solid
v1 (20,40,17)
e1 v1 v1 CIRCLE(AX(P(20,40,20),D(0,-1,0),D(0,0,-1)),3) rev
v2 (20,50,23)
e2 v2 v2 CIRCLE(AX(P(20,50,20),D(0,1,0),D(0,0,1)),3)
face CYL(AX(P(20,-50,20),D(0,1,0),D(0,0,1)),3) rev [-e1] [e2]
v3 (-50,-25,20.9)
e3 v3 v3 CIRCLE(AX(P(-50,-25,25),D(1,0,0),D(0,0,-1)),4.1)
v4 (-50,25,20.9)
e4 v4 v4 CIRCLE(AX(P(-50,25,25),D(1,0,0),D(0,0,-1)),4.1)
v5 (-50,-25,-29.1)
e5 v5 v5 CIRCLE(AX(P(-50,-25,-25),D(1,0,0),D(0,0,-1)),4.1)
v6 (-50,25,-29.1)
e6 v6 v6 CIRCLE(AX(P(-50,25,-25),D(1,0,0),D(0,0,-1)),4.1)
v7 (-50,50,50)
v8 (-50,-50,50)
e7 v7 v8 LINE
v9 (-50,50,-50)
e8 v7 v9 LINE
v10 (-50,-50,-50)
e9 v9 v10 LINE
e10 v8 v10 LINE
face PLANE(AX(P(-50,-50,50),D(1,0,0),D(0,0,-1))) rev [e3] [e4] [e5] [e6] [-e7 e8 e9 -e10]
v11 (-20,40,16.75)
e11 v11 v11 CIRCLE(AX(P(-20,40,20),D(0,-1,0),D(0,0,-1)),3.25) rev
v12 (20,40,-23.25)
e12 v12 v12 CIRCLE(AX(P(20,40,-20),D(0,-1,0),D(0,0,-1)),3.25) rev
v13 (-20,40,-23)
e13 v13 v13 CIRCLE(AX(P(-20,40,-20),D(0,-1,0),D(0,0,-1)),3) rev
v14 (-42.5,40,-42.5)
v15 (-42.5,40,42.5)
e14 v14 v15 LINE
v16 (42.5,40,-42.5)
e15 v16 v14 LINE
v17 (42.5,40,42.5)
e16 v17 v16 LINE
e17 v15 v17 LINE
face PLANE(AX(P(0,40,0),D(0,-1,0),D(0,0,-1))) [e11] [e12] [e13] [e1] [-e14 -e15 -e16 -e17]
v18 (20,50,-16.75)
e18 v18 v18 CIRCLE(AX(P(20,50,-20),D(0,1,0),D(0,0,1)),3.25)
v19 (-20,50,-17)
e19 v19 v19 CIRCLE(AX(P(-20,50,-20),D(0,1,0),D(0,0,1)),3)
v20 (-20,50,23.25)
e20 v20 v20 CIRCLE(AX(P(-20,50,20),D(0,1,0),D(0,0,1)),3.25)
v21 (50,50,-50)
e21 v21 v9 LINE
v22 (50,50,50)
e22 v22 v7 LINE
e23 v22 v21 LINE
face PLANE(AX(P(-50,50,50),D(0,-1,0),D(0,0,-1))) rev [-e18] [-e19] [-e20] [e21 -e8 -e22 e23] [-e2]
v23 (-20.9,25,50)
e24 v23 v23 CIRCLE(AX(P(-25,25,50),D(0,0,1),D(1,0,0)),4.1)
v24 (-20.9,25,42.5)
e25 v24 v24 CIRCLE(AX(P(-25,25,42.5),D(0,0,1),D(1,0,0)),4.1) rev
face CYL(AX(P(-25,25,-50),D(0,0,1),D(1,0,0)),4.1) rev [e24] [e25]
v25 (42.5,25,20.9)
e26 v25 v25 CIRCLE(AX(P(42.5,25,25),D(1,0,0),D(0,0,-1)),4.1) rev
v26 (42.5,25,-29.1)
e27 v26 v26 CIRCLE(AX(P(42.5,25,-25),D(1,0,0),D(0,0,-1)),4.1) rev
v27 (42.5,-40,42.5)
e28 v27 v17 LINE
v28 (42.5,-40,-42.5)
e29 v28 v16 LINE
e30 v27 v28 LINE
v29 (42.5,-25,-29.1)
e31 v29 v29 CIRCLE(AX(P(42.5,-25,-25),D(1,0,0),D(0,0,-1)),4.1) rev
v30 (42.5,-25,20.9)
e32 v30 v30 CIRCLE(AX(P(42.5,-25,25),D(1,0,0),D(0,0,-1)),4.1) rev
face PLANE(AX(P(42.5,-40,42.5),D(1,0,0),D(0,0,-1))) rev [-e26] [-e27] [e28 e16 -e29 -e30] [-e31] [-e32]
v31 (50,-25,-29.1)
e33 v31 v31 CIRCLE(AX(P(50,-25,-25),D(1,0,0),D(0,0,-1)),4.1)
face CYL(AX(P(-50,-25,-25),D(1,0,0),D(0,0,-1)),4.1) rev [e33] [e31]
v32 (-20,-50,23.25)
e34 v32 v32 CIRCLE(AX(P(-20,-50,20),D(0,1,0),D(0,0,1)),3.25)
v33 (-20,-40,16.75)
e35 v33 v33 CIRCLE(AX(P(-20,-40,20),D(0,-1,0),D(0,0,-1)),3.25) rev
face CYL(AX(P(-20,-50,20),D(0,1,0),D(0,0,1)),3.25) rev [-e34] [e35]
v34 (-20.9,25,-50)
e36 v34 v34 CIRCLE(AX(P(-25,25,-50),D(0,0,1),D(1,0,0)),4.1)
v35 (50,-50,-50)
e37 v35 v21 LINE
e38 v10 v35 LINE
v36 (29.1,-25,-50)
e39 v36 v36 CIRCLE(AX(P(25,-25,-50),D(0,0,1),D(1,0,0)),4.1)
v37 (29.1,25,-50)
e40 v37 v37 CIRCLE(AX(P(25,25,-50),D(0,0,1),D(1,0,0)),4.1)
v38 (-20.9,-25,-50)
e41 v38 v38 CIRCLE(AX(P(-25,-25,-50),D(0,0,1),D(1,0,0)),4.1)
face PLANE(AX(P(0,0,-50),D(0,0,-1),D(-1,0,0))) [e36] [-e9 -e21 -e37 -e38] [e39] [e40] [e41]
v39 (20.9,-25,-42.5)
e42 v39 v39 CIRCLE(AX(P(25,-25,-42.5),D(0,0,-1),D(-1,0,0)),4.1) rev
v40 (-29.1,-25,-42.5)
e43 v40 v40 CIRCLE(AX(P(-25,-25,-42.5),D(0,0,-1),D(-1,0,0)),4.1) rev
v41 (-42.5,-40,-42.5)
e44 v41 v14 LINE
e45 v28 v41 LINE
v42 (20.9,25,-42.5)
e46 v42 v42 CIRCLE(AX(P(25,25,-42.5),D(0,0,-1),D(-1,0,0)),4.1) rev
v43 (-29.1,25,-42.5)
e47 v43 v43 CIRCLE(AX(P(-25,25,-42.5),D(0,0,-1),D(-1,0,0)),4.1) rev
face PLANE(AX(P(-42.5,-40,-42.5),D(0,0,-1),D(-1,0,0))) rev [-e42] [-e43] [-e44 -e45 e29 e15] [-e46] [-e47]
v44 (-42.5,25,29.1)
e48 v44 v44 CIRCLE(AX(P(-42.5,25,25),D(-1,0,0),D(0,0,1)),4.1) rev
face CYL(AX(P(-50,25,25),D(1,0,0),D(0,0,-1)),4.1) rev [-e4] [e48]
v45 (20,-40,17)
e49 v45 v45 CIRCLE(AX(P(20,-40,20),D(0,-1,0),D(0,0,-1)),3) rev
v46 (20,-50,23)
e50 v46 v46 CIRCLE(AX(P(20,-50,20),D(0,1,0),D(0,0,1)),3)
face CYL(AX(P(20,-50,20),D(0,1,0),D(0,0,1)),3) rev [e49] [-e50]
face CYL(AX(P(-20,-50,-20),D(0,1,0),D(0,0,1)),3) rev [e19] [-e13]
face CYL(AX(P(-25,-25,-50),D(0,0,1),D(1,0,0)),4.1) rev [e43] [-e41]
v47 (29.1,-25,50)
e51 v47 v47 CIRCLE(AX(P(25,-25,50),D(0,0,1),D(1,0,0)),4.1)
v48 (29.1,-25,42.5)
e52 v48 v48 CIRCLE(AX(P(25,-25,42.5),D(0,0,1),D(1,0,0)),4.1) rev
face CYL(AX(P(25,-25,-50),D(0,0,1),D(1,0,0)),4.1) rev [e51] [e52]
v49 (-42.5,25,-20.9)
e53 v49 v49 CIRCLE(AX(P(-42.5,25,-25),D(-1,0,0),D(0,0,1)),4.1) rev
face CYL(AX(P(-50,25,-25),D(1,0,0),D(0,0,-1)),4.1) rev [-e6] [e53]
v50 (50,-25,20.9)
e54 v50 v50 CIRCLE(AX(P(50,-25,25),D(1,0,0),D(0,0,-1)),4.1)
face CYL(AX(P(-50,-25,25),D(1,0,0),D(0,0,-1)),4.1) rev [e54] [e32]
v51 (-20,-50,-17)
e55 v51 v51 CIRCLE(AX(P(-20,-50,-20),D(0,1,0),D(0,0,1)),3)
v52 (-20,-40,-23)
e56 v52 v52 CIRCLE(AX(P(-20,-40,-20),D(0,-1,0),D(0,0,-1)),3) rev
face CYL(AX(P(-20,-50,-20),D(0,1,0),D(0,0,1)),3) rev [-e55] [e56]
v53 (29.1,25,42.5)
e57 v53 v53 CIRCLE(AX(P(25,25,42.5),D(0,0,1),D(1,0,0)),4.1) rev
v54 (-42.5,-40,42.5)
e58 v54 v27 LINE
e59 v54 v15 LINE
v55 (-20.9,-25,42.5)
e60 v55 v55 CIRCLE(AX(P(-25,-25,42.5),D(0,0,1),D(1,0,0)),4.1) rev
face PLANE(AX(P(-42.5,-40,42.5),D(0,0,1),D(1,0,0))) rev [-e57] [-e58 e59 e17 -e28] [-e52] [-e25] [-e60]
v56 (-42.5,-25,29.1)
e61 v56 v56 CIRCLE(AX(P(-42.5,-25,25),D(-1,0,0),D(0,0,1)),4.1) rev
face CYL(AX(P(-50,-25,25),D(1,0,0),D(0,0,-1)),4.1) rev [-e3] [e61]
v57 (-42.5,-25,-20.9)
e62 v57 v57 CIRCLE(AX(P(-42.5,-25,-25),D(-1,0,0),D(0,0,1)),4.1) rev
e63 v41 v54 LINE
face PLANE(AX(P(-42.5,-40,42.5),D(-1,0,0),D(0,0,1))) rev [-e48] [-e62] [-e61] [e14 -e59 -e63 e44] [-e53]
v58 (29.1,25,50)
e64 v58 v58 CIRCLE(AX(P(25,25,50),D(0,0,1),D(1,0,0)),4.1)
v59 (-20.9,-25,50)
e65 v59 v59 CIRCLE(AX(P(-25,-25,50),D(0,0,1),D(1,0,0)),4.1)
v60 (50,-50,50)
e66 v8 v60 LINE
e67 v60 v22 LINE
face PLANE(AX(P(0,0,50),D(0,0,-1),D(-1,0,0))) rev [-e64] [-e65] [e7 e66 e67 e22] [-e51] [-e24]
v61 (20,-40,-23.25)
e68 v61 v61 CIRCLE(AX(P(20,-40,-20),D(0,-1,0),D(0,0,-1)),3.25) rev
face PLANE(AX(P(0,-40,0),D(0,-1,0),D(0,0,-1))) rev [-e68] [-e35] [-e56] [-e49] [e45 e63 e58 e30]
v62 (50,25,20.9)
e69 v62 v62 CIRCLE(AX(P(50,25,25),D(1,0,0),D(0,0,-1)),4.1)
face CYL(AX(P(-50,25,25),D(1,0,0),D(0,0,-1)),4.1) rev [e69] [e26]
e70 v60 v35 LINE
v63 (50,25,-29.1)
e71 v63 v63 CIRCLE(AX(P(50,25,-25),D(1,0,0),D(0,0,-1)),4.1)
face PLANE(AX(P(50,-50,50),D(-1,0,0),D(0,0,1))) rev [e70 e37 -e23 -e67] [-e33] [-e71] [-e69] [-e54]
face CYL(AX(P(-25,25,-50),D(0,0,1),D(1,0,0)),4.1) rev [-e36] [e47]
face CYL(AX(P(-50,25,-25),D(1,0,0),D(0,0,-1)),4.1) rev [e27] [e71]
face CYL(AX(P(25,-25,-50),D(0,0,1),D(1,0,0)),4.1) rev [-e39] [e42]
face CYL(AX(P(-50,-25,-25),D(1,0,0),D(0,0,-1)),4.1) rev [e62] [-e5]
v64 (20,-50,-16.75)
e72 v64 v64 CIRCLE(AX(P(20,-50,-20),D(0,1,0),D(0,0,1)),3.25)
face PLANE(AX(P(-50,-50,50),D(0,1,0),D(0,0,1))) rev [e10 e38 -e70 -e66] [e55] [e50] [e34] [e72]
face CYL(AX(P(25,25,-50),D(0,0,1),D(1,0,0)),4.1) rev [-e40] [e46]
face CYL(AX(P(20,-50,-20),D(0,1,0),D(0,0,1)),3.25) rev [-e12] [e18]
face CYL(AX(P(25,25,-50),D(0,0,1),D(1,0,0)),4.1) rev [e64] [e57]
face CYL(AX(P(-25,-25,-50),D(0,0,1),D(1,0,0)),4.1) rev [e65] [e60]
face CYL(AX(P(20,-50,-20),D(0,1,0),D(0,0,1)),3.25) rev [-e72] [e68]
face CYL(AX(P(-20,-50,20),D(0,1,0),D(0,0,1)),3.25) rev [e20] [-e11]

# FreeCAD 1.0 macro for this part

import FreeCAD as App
import Part
import Sketcher
Q = App.Units.Quantity

doc = App.newDocument("Part")
params = doc.addObject("Spreadsheet::Sheet", "Params")
for row, (alias, value) in enumerate([
    ("sketch1_width", "100 mm"),
    ("pad1_length", "100 mm"),
    ("sketch2_diameter", "8.2 mm"),
    ("sketch3_diameter", "8.2 mm"),
    ("sketch4_diameter", "6 mm"),
    ("sketch4_diameter2", "6.5 mm"),
    ("sketch5_width", "85 mm"),
    ("pocket4_length", "80 mm"),
], start=1):
    params.set(f"A{row}", alias)
    params.set(f"B{row}", "=" + value)
    params.setAlias(f"B{row}", alias)

body = doc.addObject("PartDesign::Body", "Body")

# Sketch on XY plane
sketch1 = doc.addObject("Sketcher::SketchObject", "Sketch")
body.addObject(sketch1)
sketch1.AttachmentSupport = (doc.XY_Plane, [""])
sketch1.MapMode = "FlatFace"
sketch1.addGeometry([
    Part.LineSegment(App.Vector(-50, 50, 0), App.Vector(-50, -50, 0)),
    Part.LineSegment(App.Vector(-50, -50, 0), App.Vector(50, -50, 0)),
    Part.LineSegment(App.Vector(50, -50, 0), App.Vector(50, 50, 0)),
    Part.LineSegment(App.Vector(50, 50, 0), App.Vector(-50, 50, 0)),
], False)
sketch1.addConstraint([
    Sketcher.Constraint("Coincident", 0, 2, 1, 1),
    Sketcher.Constraint("Coincident", 1, 2, 2, 1),
    Sketcher.Constraint("Coincident", 2, 2, 3, 1),
    Sketcher.Constraint("Coincident", 3, 2, 0, 1),
    Sketcher.Constraint("Vertical", 0),
    Sketcher.Constraint("Horizontal", 1),
    Sketcher.Constraint("Vertical", 2),
    Sketcher.Constraint("Horizontal", 3),
    Sketcher.Constraint("Symmetric", 0, 2, 2, 2, -1, 1),
    Sketcher.Constraint("Equal", 3, 0),
    Sketcher.Constraint("DistanceX", 1, 1, 1, 2, Q("100 mm")),
])
sketch1.setExpression("Constraints[10]", "Params.sketch1_width")
pad1 = doc.addObject("PartDesign::Pad", "Pad")
body.addObject(pad1)
pad1.Profile = sketch1
pad1.setExpression("Length", "Params.pad1_length")
pad1.Midplane = True

# Sketch on XY plane
sketch2 = doc.addObject("Sketcher::SketchObject", "Sketch001")
body.addObject(sketch2)
sketch2.AttachmentSupport = (doc.XY_Plane, [""])
sketch2.MapMode = "FlatFace"
sketch2.AttachmentOffset = App.Placement(App.Vector(0, 0, 50), App.Rotation())
sketch2.addGeometry([
    Part.Circle(App.Vector(-25, 25, 0), App.Vector(0, 0, 1), 4.1),
    Part.Circle(App.Vector(25, 25, 0), App.Vector(0, 0, 1), 4.1),
    Part.Circle(App.Vector(25, -25, 0), App.Vector(0, 0, 1), 4.1),
    Part.Circle(App.Vector(-25, -25, 0), App.Vector(0, 0, 1), 4.1),
], False)
sketch2.addConstraint([
    Sketcher.Constraint("Equal", 0, 1),
    Sketcher.Constraint("Equal", 1, 2),
    Sketcher.Constraint("Equal", 2, 3),
    Sketcher.Constraint("Symmetric", 0, 3, 2, 3, -1, 1),
    Sketcher.Constraint("Symmetric", 1, 3, 3, 3, -1, 1),
    Sketcher.Constraint("Symmetric", 0, 3, 1, 3, -2),
    Sketcher.Constraint("Diameter", 0, Q("8.2 mm")),
    Sketcher.Constraint("DistanceX", 0, 3, -1, 1, Q("25 mm")),
    Sketcher.Constraint("DistanceY", -1, 1, 0, 3, Q("25 mm")),
])
sketch2.setExpression("Constraints[6]", "Params.sketch2_diameter")
pocket1 = doc.addObject("PartDesign::Pocket", "Pocket")
body.addObject(pocket1)
pocket1.Profile = sketch2
pocket1.Type = "ThroughAll"

# Sketch on YZ plane
sketch3 = doc.addObject("Sketcher::SketchObject", "Sketch002")
body.addObject(sketch3)
sketch3.AttachmentSupport = (doc.YZ_Plane, [""])
sketch3.MapMode = "FlatFace"
sketch3.AttachmentOffset = App.Placement(App.Vector(0, 0, 50), App.Rotation())
sketch3.addGeometry([
    Part.Circle(App.Vector(25, 25, 0), App.Vector(0, 0, 1), 4.1),
    Part.Circle(App.Vector(25, -25, 0), App.Vector(0, 0, 1), 4.1),
    Part.Circle(App.Vector(-25, -25, 0), App.Vector(0, 0, 1), 4.1),
    Part.Circle(App.Vector(-25, 25, 0), App.Vector(0, 0, 1), 4.1),
], False)
sketch3.addConstraint([
    Sketcher.Constraint("Equal", 0, 1),
    Sketcher.Constraint("Equal", 1, 2),
    Sketcher.Constraint("Equal", 2, 3),
    Sketcher.Constraint("Symmetric", 0, 3, 2, 3, -1, 1),
    Sketcher.Constraint("Symmetric", 1, 3, 3, 3, -1, 1),
    Sketcher.Constraint("Symmetric", 1, 3, 2, 3, -2),
    Sketcher.Constraint("Diameter", 0, Q("8.2 mm")),
    Sketcher.Constraint("DistanceX", -1, 1, 0, 3, Q("25 mm")),
    Sketcher.Constraint("DistanceY", -1, 1, 0, 3, Q("25 mm")),
])
sketch3.setExpression("Constraints[6]", "Params.sketch3_diameter")
pocket2 = doc.addObject("PartDesign::Pocket", "Pocket001")
body.addObject(pocket2)
pocket2.Profile = sketch3
pocket2.Type = "ThroughAll"

# Sketch on XZ plane
sketch4 = doc.addObject("Sketcher::SketchObject", "Sketch003")
body.addObject(sketch4)
sketch4.AttachmentSupport = (doc.XZ_Plane, [""])
sketch4.MapMode = "FlatFace"
sketch4.AttachmentOffset = App.Placement(App.Vector(0, 0, -50), App.Rotation())
sketch4.addGeometry([
    Part.Circle(App.Vector(-20, -20, 0), App.Vector(0, 0, 1), 3),
    Part.Circle(App.Vector(20, 20, 0), App.Vector(0, 0, 1), 3),
    Part.Circle(App.Vector(20, -20, 0), App.Vector(0, 0, 1), 3.2),
    Part.Circle(App.Vector(-20, 20, 0), App.Vector(0, 0, 1), 3.2),
], False)
sketch4.addConstraint([
    Sketcher.Constraint("Equal", 0, 1),
    Sketcher.Constraint("Equal", 2, 3),
    Sketcher.Constraint("Symmetric", 0, 3, 1, 3, -1, 1),
    Sketcher.Constraint("Symmetric", 2, 3, 3, 3, -1, 1),
    Sketcher.Constraint("Symmetric", 0, 3, 2, 3, -2),
    Sketcher.Constraint("Diameter", 0, Q("6 mm")),
    Sketcher.Constraint("Diameter", 2, Q("6.5 mm")),
    Sketcher.Constraint("DistanceX", 0, 3, -1, 1, Q("20 mm")),
    Sketcher.Constraint("DistanceY", 0, 3, -1, 1, Q("20 mm")),
])
sketch4.setExpression("Constraints[5]", "Params.sketch4_diameter")
sketch4.setExpression("Constraints[6]", "Params.sketch4_diameter2")
pocket3 = doc.addObject("PartDesign::Pocket", "Pocket002")
body.addObject(pocket3)
pocket3.Profile = sketch4
pocket3.Type = "ThroughAll"
pocket3.Reversed = True

# Sketch on XZ plane
sketch5 = doc.addObject("Sketcher::SketchObject", "Sketch004")
body.addObject(sketch5)
sketch5.AttachmentSupport = (doc.XZ_Plane, [""])
sketch5.MapMode = "FlatFace"
sketch5.addGeometry([
    Part.LineSegment(App.Vector(-42, -42, 0), App.Vector(-42, 42, 0)),
    Part.LineSegment(App.Vector(-42, 42, 0), App.Vector(42, 42, 0)),
    Part.LineSegment(App.Vector(42, 42, 0), App.Vector(42, -42, 0)),
    Part.LineSegment(App.Vector(42, -42, 0), App.Vector(-42, -42, 0)),
], False)
sketch5.addConstraint([
    Sketcher.Constraint("Coincident", 0, 2, 1, 1),
    Sketcher.Constraint("Coincident", 1, 2, 2, 1),
    Sketcher.Constraint("Coincident", 2, 2, 3, 1),
    Sketcher.Constraint("Coincident", 3, 2, 0, 1),
    Sketcher.Constraint("Vertical", 0),
    Sketcher.Constraint("Horizontal", 1),
    Sketcher.Constraint("Vertical", 2),
    Sketcher.Constraint("Horizontal", 3),
    Sketcher.Constraint("Symmetric", 0, 2, 2, 2, -1, 1),
    Sketcher.Constraint("Equal", 3, 0),
    Sketcher.Constraint("DistanceX", 1, 1, 1, 2, Q("85 mm")),
])
sketch5.setExpression("Constraints[10]", "Params.sketch5_width")
pocket4 = doc.addObject("PartDesign::Pocket", "Pocket003")
body.addObject(pocket4)
pocket4.Profile = sketch5
pocket4.setExpression("Length", "Params.pocket4_length")
pocket4.Midplane = True

doc.recompute()
